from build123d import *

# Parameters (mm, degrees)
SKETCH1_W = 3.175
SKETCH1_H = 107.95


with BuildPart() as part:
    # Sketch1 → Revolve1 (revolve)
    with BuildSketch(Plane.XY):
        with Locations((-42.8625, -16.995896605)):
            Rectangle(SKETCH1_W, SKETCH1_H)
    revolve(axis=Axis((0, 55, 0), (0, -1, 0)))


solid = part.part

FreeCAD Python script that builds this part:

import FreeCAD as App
import Part
import Sketcher

V = App.Vector
Q = App.Units.Quantity

doc = App.newDocument("Part")
params = doc.addObject("Spreadsheet::Sheet", "Params")
for row, (alias, value) in enumerate([
    ("sketch1_height", "4.25 in"),
    ("sketch1_width", "0.125 in"),
    ("revolution_angle", "360 deg"),
], start=1):
    params.set(f"A{row}", alias)
    params.set(f"B{row}", "=" + value)
    params.setAlias(f"B{row}", alias)

body = doc.addObject("PartDesign::Body", "Body")

sketch1 = doc.addObject("Sketcher::SketchObject", "Sketch")
body.addObject(sketch1)
sketch1.AttachmentSupport = (doc.XY_Plane, [""])
sketch1.MapMode = "FlatFace"
sketch1.addGeometry([
    Part.LineSegment(V(-44.45, 36.979103, 0), V(-44.45, -70.970897, 0)),
    Part.LineSegment(V(-44.45, -70.970897, 0), V(-41.275, -70.970897, 0)),
    Part.LineSegment(V(-41.275, -70.970897, 0), V(-41.275, 36.979103, 0)),
    Part.LineSegment(V(-41.275, 36.979103, 0), V(-44.45, 36.979103, 0)),
], False)
sketch1.addConstraint([
    Sketcher.Constraint("Coincident", 0, 2, 1, 1),
    Sketcher.Constraint("Coincident", 1, 2, 2, 1),
    Sketcher.Constraint("Coincident", 2, 2, 3, 1),
    Sketcher.Constraint("Coincident", 3, 2, 0, 1),
    Sketcher.Constraint("Vertical", 0),
    Sketcher.Constraint("Horizontal", 1),
    Sketcher.Constraint("Vertical", 2),
    Sketcher.Constraint("Horizontal", 3),
    Sketcher.Constraint("DistanceY", 0, 2, 0, 1, Q("4.25 in")),
    Sketcher.Constraint("DistanceX", 1, 1, 1, 2, Q("0.125 in")),
    Sketcher.Constraint("DistanceX", 0, 2, -1, 1, Q("1.75 in")),
    Sketcher.Constraint("DistanceY", 0, 2, -1, 1, Q("70.970897 mm")),
])
sketch1.setExpression("Constraints[8]", "Params.sketch1_height")
sketch1.setExpression("Constraints[9]", "Params.sketch1_width")
revolution = doc.addObject("PartDesign::Revolution", "Revolution")
body.addObject(revolution)
revolution.Profile = sketch1
revolution.ReferenceAxis = (sketch1, ["V_Axis"])
revolution.setExpression("Angle", "Params.revolution_angle")

doc.recompute()
